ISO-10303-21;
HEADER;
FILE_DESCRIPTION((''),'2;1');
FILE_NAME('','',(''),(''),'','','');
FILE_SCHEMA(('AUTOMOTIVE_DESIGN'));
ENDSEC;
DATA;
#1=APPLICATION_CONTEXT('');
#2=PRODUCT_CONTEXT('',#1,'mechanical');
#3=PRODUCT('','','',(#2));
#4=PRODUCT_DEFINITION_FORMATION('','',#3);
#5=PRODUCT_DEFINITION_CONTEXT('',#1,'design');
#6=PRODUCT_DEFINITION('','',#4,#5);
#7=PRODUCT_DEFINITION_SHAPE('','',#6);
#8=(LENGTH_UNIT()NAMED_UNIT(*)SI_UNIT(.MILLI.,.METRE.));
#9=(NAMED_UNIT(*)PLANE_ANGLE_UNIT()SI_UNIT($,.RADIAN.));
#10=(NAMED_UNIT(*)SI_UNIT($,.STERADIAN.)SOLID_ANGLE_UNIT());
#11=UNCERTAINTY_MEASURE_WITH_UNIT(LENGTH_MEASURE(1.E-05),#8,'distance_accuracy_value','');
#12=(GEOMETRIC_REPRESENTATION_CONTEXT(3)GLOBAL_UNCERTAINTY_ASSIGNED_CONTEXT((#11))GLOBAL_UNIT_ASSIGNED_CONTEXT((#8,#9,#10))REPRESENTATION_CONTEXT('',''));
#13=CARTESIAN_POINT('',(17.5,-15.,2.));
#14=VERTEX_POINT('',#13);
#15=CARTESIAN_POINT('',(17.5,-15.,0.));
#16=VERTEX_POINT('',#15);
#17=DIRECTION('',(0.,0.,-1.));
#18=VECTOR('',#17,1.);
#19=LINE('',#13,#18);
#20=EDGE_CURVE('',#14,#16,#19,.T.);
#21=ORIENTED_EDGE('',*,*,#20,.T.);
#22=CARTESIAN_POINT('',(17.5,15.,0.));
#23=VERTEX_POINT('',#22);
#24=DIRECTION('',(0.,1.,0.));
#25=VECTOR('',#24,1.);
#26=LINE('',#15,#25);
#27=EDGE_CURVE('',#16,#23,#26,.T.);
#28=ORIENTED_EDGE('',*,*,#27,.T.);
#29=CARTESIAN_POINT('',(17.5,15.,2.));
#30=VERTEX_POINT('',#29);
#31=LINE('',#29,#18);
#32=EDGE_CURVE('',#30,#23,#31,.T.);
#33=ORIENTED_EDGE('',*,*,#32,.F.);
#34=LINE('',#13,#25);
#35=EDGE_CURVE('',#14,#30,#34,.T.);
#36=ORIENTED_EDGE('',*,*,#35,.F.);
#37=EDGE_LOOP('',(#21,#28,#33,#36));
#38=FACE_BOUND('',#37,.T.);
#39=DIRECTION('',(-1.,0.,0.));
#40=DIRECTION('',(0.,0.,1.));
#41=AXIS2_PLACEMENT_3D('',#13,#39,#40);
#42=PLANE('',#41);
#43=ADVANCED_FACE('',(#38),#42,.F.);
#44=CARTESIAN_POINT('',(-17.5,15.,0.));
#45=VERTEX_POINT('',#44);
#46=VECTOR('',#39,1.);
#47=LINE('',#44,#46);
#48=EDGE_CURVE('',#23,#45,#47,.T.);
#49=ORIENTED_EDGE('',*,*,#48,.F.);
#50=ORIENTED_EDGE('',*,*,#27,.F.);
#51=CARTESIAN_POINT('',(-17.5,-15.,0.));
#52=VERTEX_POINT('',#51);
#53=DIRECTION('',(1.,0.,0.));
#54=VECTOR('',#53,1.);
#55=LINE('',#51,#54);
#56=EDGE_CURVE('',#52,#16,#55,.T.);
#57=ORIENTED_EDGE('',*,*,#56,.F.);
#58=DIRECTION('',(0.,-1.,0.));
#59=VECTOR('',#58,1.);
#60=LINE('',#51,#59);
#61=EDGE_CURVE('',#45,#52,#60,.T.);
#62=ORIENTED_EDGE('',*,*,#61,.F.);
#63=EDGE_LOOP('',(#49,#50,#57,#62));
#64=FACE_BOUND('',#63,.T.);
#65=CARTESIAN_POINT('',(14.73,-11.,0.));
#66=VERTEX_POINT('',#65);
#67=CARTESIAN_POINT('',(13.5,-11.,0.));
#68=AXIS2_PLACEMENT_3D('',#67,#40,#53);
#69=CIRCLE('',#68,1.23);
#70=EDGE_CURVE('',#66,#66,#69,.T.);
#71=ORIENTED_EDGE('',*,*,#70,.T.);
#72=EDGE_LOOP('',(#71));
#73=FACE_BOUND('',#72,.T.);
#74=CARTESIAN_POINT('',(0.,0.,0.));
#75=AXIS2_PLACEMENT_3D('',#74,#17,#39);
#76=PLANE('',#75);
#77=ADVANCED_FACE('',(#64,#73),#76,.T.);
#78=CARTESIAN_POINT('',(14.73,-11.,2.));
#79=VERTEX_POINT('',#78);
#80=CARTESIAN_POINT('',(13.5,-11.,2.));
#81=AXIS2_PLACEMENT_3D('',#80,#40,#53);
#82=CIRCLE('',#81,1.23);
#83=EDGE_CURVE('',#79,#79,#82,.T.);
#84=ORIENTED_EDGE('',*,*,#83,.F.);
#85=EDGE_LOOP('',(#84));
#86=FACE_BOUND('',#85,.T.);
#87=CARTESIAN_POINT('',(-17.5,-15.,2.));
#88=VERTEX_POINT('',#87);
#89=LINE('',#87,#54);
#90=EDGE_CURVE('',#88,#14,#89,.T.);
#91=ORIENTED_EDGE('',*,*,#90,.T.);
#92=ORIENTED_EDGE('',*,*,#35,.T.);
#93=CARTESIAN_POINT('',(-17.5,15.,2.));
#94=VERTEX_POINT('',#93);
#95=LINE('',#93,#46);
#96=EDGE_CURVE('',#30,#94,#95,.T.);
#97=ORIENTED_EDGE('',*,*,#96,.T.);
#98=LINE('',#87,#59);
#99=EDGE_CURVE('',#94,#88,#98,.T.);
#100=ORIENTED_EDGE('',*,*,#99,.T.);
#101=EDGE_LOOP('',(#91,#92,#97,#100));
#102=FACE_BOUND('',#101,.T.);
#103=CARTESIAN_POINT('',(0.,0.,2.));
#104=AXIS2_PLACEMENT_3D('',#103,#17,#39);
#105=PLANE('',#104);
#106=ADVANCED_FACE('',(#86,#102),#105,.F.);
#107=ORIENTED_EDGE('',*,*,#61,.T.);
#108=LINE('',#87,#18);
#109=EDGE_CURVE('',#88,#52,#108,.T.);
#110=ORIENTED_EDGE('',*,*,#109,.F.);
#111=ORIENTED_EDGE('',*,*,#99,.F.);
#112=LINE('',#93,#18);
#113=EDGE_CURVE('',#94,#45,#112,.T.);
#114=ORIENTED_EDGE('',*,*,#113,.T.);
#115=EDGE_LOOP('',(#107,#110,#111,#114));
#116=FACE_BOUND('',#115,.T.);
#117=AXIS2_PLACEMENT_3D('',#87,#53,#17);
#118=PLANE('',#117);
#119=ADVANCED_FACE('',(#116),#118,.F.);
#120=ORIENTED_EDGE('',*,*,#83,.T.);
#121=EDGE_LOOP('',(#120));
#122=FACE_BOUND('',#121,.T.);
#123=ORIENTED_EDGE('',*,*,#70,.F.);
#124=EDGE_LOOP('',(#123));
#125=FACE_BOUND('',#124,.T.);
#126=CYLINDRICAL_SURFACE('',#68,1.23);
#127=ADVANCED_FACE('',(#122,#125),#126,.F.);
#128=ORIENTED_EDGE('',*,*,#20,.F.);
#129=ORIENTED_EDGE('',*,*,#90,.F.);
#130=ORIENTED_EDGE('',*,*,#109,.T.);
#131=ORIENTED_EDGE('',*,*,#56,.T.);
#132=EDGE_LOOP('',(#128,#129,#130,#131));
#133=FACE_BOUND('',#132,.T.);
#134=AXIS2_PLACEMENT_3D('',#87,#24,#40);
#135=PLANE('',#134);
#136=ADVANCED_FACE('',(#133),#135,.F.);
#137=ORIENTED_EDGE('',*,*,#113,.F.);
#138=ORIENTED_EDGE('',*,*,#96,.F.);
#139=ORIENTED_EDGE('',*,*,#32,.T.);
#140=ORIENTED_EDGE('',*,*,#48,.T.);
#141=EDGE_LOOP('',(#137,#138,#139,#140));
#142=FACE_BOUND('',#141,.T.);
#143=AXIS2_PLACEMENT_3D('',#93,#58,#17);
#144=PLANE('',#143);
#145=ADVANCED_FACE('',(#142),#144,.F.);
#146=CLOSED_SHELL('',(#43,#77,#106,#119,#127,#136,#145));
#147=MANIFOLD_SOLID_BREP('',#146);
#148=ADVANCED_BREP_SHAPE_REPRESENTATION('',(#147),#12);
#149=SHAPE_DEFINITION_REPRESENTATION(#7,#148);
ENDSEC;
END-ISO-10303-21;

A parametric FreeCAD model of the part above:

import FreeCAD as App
import Part
import Sketcher

V = App.Vector


def add_polygon(sketch, points):
    """Adds a closed chain of lines whose ends are joined by coincident constraints."""
    first, n = sketch.GeometryCount, len(points)
    for a, b in zip(points, points[1:] + points[:1]):
        sketch.addGeometry(Part.LineSegment(App.Vector(*a, 0), App.Vector(*b, 0)), False)
    for i in range(n):
        sketch.addConstraint(Sketcher.Constraint("Coincident", first + i, 2, first + (i + 1) % n, 1))

doc = App.newDocument("Part")
body = doc.addObject("PartDesign::Body", "Body")

sketch1 = body.newObject("Sketcher::SketchObject", "Sketch")
sketch1.AttachmentSupport = (doc.getObject("XY_Plane"), [""])
sketch1.MapMode = "FlatFace"
add_polygon(sketch1, [(-17.5, 15), (-17.5, -15), (17.5, -15), (17.5, 15)])
sketch1.addConstraint([
    Sketcher.Constraint("Vertical", 0),
    Sketcher.Constraint("Horizontal", 1),
    Sketcher.Constraint("Vertical", 2),
    Sketcher.Constraint("Horizontal", 3),
    Sketcher.Constraint("Symmetric", 0, 2, 2, 2, -1, 1),
    Sketcher.Constraint("DistanceX", 1, 1, 1, 2, 35.0),
    Sketcher.Constraint("DistanceY", 0, 2, 0, 1, 30.0),
])
pad1 = body.newObject("PartDesign::Pad", "Pad")
pad1.Profile = sketch1
pad1.Length = 2

sketch2 = body.newObject("Sketcher::SketchObject", "Sketch001")
sketch2.AttachmentSupport = (doc.getObject("XY_Plane"), [""])
sketch2.MapMode = "FlatFace"
sketch2.AttachmentOffset = App.Placement(V(0, 0, 2), App.Rotation())
sketch2.addGeometry(Part.Circle(V(13.5, -11, 0), V(0, 0, 1), 1.23), False)
sketch2.addConstraint([
    Sketcher.Constraint("Diameter", 0, 2.46),
    Sketcher.Constraint("DistanceY", 0, 3, -1, 1, 11.0),
    Sketcher.Constraint("DistanceX", -1, 1, 0, 3, 13.5),
])
pocket1 = body.newObject("PartDesign::Pocket", "Pocket")
pocket1.Profile = sketch2
pocket1.Length = 2

doc.recompute()
